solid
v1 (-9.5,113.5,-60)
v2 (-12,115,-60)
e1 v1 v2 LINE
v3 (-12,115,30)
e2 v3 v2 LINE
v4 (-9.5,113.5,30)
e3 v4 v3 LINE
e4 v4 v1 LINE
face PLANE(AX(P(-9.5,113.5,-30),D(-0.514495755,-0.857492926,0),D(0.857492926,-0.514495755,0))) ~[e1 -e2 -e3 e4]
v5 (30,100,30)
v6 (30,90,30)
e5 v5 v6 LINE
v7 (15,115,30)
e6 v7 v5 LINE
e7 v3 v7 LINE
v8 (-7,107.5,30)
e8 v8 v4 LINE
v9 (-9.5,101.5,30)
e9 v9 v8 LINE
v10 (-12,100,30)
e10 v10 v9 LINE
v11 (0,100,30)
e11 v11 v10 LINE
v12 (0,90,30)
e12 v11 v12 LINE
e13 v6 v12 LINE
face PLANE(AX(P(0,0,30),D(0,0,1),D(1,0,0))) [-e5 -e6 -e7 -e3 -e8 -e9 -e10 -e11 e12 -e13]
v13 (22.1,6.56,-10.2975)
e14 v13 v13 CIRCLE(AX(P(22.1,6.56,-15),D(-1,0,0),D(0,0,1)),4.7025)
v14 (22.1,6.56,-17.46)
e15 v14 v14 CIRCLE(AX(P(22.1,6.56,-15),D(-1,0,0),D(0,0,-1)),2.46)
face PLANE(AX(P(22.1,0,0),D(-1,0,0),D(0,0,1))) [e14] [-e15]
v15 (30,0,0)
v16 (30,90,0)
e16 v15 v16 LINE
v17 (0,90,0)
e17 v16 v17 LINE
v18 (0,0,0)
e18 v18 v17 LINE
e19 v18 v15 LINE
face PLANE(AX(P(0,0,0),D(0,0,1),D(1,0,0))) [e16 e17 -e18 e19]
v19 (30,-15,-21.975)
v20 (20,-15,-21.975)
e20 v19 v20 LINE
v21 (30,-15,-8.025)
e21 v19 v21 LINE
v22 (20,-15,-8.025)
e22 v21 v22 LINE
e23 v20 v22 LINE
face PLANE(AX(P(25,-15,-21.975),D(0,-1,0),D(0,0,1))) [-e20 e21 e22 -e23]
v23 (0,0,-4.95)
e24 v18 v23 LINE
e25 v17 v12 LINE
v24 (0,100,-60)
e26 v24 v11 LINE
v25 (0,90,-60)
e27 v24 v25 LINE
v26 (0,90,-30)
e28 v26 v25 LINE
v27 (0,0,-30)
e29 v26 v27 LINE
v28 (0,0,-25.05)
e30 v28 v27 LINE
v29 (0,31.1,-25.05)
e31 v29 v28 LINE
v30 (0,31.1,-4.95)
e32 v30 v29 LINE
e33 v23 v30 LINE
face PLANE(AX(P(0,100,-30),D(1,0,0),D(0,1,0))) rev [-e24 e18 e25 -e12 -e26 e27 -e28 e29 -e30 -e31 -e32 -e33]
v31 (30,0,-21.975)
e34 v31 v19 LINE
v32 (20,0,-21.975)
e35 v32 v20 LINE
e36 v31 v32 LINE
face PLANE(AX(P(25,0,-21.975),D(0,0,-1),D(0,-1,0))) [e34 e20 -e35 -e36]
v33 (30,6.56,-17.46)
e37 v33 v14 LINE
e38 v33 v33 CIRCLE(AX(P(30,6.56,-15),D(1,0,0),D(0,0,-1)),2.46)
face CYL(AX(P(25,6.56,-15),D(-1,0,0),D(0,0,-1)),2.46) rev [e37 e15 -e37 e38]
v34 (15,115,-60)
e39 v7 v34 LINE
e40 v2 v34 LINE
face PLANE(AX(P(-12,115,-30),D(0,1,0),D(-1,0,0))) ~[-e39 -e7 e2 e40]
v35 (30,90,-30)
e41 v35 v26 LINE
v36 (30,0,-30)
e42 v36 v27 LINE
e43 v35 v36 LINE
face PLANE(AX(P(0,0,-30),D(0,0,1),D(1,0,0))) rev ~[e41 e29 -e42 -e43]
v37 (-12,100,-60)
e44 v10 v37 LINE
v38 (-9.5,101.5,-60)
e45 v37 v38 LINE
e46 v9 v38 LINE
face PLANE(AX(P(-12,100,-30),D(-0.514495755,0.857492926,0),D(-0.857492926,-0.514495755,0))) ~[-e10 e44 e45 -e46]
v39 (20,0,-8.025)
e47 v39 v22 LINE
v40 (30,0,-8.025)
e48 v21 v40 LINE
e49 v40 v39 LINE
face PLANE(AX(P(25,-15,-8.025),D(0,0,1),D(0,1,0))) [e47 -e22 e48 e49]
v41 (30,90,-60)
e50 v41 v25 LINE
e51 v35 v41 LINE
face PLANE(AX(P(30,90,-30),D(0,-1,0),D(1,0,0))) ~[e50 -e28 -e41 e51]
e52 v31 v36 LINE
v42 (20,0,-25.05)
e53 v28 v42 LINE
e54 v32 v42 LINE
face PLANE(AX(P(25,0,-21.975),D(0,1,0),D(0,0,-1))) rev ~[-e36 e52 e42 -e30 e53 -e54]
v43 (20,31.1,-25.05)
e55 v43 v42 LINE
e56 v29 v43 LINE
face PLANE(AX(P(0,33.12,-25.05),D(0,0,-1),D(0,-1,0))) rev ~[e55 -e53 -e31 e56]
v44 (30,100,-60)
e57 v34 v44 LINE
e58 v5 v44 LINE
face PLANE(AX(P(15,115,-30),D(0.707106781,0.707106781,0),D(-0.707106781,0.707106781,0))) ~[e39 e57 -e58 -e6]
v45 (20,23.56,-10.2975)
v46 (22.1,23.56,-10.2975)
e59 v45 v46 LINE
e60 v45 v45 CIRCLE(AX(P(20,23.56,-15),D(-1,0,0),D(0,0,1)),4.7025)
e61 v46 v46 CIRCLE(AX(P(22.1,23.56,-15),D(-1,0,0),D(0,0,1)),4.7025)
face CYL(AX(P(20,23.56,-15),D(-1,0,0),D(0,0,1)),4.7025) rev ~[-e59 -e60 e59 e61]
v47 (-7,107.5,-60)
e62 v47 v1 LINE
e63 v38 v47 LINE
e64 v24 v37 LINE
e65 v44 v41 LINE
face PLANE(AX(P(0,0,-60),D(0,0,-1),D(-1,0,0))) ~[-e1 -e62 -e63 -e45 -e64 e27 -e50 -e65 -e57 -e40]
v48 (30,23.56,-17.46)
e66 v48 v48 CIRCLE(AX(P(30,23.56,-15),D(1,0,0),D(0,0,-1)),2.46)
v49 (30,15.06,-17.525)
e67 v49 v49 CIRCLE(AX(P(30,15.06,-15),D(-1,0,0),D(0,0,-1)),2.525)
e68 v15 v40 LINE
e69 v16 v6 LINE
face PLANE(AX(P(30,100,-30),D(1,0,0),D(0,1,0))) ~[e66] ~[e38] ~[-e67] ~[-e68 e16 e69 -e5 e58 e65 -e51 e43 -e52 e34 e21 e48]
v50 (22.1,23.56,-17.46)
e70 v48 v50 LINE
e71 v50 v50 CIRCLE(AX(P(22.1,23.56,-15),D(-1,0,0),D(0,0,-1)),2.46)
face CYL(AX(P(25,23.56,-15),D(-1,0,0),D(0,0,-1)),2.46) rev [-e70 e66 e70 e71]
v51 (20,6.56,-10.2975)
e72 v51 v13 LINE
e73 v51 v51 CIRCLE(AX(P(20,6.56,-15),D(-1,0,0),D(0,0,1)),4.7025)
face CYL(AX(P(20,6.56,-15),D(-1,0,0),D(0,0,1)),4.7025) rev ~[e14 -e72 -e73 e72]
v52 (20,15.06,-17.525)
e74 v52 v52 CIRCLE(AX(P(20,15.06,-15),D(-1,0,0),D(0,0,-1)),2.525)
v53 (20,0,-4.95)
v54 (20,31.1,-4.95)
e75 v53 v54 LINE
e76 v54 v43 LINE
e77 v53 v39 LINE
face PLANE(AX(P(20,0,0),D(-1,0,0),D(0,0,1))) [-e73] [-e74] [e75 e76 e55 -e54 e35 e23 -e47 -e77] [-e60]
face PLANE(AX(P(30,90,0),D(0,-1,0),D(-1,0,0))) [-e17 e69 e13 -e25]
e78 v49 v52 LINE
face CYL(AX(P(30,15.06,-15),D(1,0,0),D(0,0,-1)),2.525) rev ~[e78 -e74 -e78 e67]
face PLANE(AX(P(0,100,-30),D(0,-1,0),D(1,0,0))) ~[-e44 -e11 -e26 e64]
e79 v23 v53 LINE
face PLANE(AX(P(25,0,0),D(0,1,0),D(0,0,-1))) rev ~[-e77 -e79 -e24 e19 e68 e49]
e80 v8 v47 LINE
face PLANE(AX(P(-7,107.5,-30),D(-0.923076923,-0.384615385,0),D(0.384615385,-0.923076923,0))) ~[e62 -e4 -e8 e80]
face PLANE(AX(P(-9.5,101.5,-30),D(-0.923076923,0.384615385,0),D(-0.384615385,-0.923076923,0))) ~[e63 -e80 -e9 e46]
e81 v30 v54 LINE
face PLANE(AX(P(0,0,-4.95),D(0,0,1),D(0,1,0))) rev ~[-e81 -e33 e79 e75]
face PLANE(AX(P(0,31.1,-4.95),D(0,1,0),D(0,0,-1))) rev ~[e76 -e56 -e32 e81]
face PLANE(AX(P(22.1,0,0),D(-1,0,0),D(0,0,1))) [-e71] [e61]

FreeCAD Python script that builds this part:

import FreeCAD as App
import Part
import Sketcher

V = App.Vector
Q = App.Units.Quantity


def add_polygon(sketch, points):
    """Adds a closed chain of lines whose ends are joined by coincident constraints."""
    first, n = sketch.GeometryCount, len(points)
    for a, b in zip(points, points[1:] + points[:1]):
        sketch.addGeometry(Part.LineSegment(App.Vector(*a, 0), App.Vector(*b, 0)), False)
    for i in range(n):
        sketch.addConstraint(Sketcher.Constraint("Coincident", first + i, 2, first + (i + 1) % n, 1))

doc = App.newDocument("Part")
body = doc.addObject("PartDesign::Body", "Body")

sketch1 = body.newObject("Sketcher::SketchObject", "Sketch")
sketch1.AttachmentSupport = (doc.getObject("XY_Plane"), [""])
sketch1.MapMode = "FlatFace"
add_polygon(sketch1, [(0, 40), (0, 0), (25, 0), (25, 40)])
sketch1.addConstraint([
    Sketcher.Constraint("Vertical", 0),
    Sketcher.Constraint("Horizontal", 1),
    Sketcher.Constraint("Vertical", 2),
    Sketcher.Constraint("Horizontal", 3),
    Sketcher.Constraint("Coincident", 0, 2, -1, 1),
    Sketcher.Constraint("DistanceX", 1, 1, 1, 2, Q("25 mm")),
    Sketcher.Constraint("DistanceY", 0, 2, 0, 1, Q("40 mm")),
])
pad1 = body.newObject("PartDesign::Pad", "Pad")
pad1.Profile = sketch1
pad1.Length = 30
pad1.Reversed = True

sketch2 = body.newObject("Sketcher::SketchObject", "Sketch001")
sketch2.AttachmentSupport = (doc.getObject("YZ_Plane"), [""])
sketch2.MapMode = "FlatFace"
sketch2.AttachmentOffset = App.Placement(V(0, 0, 25), App.Rotation())
sketch2.addGeometry(Part.Circle(V(6.6, -15, 0), V(0, 0, 1), 2.5), False)
sketch2.addConstraint([
    Sketcher.Constraint("Diameter", 0, Q("4.92 mm")),
    Sketcher.Constraint("DistanceY", 0, 3, -1, 1, Q("15 mm")),
    Sketcher.Constraint("DistanceX", -1, 1, 0, 3, Q("6.56 mm")),
])
pocket1 = body.newObject("PartDesign::Pocket", "Pocket")
pocket1.Profile = sketch2
pocket1.Length = 30

sketch3 = body.newObject("Sketcher::SketchObject", "Sketch002")
sketch3.AttachmentSupport = (doc.getObject("YZ_Plane"), [""])
sketch3.MapMode = "FlatFace"
add_polygon(sketch3, [(0, -25), (0, -5), (33, -5), (33, -25)])
sketch3.addConstraint([
    Sketcher.Constraint("Vertical", 0),
    Sketcher.Constraint("Horizontal", 1),
    Sketcher.Constraint("Vertical", 2),
    Sketcher.Constraint("Horizontal", 3),
    Sketcher.Constraint("PointOnObject", 0, 2, -2),
    Sketcher.Constraint("DistanceY", 0, 1, 0, 2, Q("20.1 mm")),
    Sketcher.Constraint("DistanceX", 1, 1, 1, 2, Q("33.12 mm")),
    Sketcher.Constraint("DistanceY", 0, 2, -1, 1, Q("4.95 mm")),
])
pocket2 = body.newObject("PartDesign::Pocket", "Pocket001")
pocket2.Profile = sketch3
pocket2.Length = 20
pocket2.Reversed = True

sketch4 = body.newObject("Sketcher::SketchObject", "Sketch003")
sketch4.AttachmentSupport = (doc.getObject("XZ_Plane"), [""])
sketch4.MapMode = "FlatFace"
add_polygon(sketch4, [(25, -8), (20, -8), (20, -22), (25, -22)])
sketch4.addConstraint([
    Sketcher.Constraint("Horizontal", 0),
    Sketcher.Constraint("Vertical", 1),
    Sketcher.Constraint("Horizontal", 2),
    Sketcher.Constraint("Vertical", 3),
    Sketcher.Constraint("DistanceY", 1, 2, 1, 1, Q("13.95 mm")),
    Sketcher.Constraint("DistanceX", 0, 2, 0, 1, Q("5 mm")),
    Sketcher.Constraint("DistanceX", -1, 1, 0, 2, Q("20 mm")),
    Sketcher.Constraint("DistanceY", 0, 2, -1, 1, Q("8.025 mm")),
])
pad2 = body.newObject("PartDesign::Pad", "Pad001")
pad2.Profile = sketch4
pad2.Length = 15

sketch5 = body.newObject("Sketcher::SketchObject", "Sketch004")
sketch5.AttachmentSupport = (doc.getObject("YZ_Plane"), [""])
sketch5.MapMode = "FlatFace"
sketch5.AttachmentOffset = App.Placement(V(0, 0, 20), App.Rotation())
sketch5.addGeometry([
    Part.Circle(V(6.6, -15, 0), V(0, 0, 1), 4.7),
    Part.Circle(V(6.6, -15, 0), V(0, 0, 1), 2.5),
], False)
sketch5.addConstraint([
    Sketcher.Constraint("Coincident", 1, 3, 0, 3),
    Sketcher.Constraint("Diameter", 0, Q("9.405 mm")),
    Sketcher.Constraint("Diameter", 1, Q("4.92 mm")),
    Sketcher.Constraint("DistanceY", 0, 3, -1, 1, Q("15 mm")),
    Sketcher.Constraint("DistanceX", -1, 1, 0, 3, Q("6.56 mm")),
])
pocket3 = body.newObject("PartDesign::Pocket", "Pocket002")
pocket3.Profile = sketch5
pocket3.Length = 2.1
pocket3.Reversed = True

sketch6 = body.newObject("Sketcher::SketchObject", "Sketch005")
sketch6.AttachmentSupport = (doc.getObject("YZ_Plane"), [""])
sketch6.MapMode = "FlatFace"
sketch6.AttachmentOffset = App.Placement(V(0, 0, 25), App.Rotation())
sketch6.addGeometry(Part.Circle(V(23.6, -15, 0), V(0, 0, 1), 2.5), False)
sketch6.addConstraint([
    Sketcher.Constraint("Diameter", 0, Q("4.92 mm")),
    Sketcher.Constraint("DistanceY", 0, 3, -1, 1, Q("15 mm")),
    Sketcher.Constraint("DistanceX", -1, 1, 0, 3, Q("23.56 mm")),
])
pocket4 = body.newObject("PartDesign::Pocket", "Pocket003")
pocket4.Profile = sketch6
pocket4.Length = 10

sketch7 = body.newObject("Sketcher::SketchObject", "Sketch006")
sketch7.AttachmentSupport = (doc.getObject("YZ_Plane"), [""])
sketch7.MapMode = "FlatFace"
sketch7.AttachmentOffset = App.Placement(V(0, 0, 20), App.Rotation())
sketch7.addGeometry([
    Part.Circle(V(23.6, -15, 0), V(0, 0, 1), 4.7),
    Part.Circle(V(23.6, -15, 0), V(0, 0, 1), 2.5),
], False)
sketch7.addConstraint([
    Sketcher.Constraint("Coincident", 1, 3, 0, 3),
    Sketcher.Constraint("Diameter", 0, Q("9.405 mm")),
    Sketcher.Constraint("Diameter", 1, Q("4.92 mm")),
    Sketcher.Constraint("DistanceY", 0, 3, -1, 1, Q("15 mm")),
    Sketcher.Constraint("DistanceX", -1, 1, 0, 3, Q("23.56 mm")),
])
pocket5 = body.newObject("PartDesign::Pocket", "Pocket004")
pocket5.Profile = sketch7
pocket5.Length = 2.1
pocket5.Reversed = True

sketch8 = body.newObject("Sketcher::SketchObject", "Sketch007")
sketch8.AttachmentSupport = (doc.getObject("YZ_Plane"), [""])
sketch8.MapMode = "FlatFace"
sketch8.AttachmentOffset = App.Placement(V(0, 0, 25), App.Rotation())
add_polygon(sketch8, [(0, -30), (40, -30), (40, 0), (0, 0), (0, -8), (-15, -8), (-15, -22), (0, -22)])
sketch8.addGeometry(Part.Circle(V(6.6, -15, 0), V(0, 0, 1), 2.5), False)
sketch8.addGeometry(Part.Circle(V(23.6, -15, 0), V(0, 0, 1), 2.5), False)
sketch8.addConstraint([
    Sketcher.Constraint("Horizontal", 0),
    Sketcher.Constraint("Vertical", 1),
    Sketcher.Constraint("Horizontal", 2),
    Sketcher.Constraint("Vertical", 3),
    Sketcher.Constraint("Horizontal", 4),
    Sketcher.Constraint("Vertical", 5),
    Sketcher.Constraint("Horizontal", 6),
    Sketcher.Constraint("Vertical", 7),
    Sketcher.Constraint("Coincident", 2, 2, -1, 1),
    Sketcher.Constraint("Equal", 8, 9),
    Sketcher.Constraint("PointOnObject", 6, 2, -2),
    Sketcher.Constraint("Horizontal", 8, 3, 9, 3),
    Sketcher.Constraint("Equal", 3, 7),
    Sketcher.Constraint("Diameter", 8, Q("4.92 mm")),
    Sketcher.Constraint("DistanceX", 0, 1, 0, 2, Q("40 mm")),
    Sketcher.Constraint("DistanceX", 4, 2, 4, 1, Q("15 mm")),
    Sketcher.Constraint("DistanceY", 1, 1, 1, 2, Q("30 mm")),
    Sketcher.Constraint("DistanceY", 8, 3, -1, 1, Q("15 mm")),
    Sketcher.Constraint("DistanceX", 8, 3, 9, 3, Q("17 mm")),
    Sketcher.Constraint("DistanceY", 5, 2, 5, 1, Q("13.95 mm")),
    Sketcher.Constraint("DistanceX", -1, 1, 8, 3, Q("6.56 mm")),
])
pad3 = body.newObject("PartDesign::Pad", "Pad002")
pad3.Profile = sketch8
pad3.Length = 5

sketch9 = body.newObject("Sketcher::SketchObject", "Sketch008")
sketch9.AttachmentSupport = (doc.getObject("XZ_Plane"), [""])
sketch9.MapMode = "FlatFace"
sketch9.AttachmentOffset = App.Placement(V(0, 0, -40), App.Rotation())
add_polygon(sketch9, [(30, -30), (0, -30), (0, 0), (30, 0)])
sketch9.addConstraint([
    Sketcher.Constraint("Horizontal", 0),
    Sketcher.Constraint("Vertical", 1),
    Sketcher.Constraint("Horizontal", 2),
    Sketcher.Constraint("Vertical", 3),
    Sketcher.Constraint("Coincident", 1, 2, -1, 1),
    Sketcher.Constraint("Equal", 2, 1),
    Sketcher.Constraint("DistanceX", 0, 2, 0, 1, Q("30 mm")),
])
pad4 = body.newObject("PartDesign::Pad", "Pad003")
pad4.Profile = sketch9
pad4.Length = 30
pad4.Reversed = True

sketch10 = body.newObject("Sketcher::SketchObject", "Sketch009")
sketch10.AttachmentSupport = (doc.getObject("YZ_Plane"), [""])
sketch10.MapMode = "FlatFace"
sketch10.AttachmentOffset = App.Placement(V(0, 0, 30), App.Rotation())
sketch10.addGeometry(Part.Circle(V(15.1, -15, 0), V(0, 0, 1), 2.5), False)
sketch10.addConstraint([
    Sketcher.Constraint("Diameter", 0, Q("5.05 mm")),
    Sketcher.Constraint("DistanceY", 0, 3, -1, 1, Q("15 mm")),
    Sketcher.Constraint("DistanceX", -1, 1, 0, 3, Q("15.06 mm")),
])
pocket6 = body.newObject("PartDesign::Pocket", "Pocket005")
pocket6.Profile = sketch10
pocket6.Length = 30

sketch11 = body.newObject("Sketcher::SketchObject", "Sketch010")
sketch11.AttachmentSupport = (doc.getObject("XY_Plane"), [""])
sketch11.MapMode = "FlatFace"
add_polygon(sketch11, [(0, 70), (30, 70), (30, 100), (15, 115), (-12, 115), (-9.5, 113.5), (-7, 107.5), (-9.5, 101.5), (-12, 100), (0, 100)])
sketch11.addConstraint([
    Sketcher.Constraint("Horizontal", 0),
    Sketcher.Constraint("Vertical", 1),
    Sketcher.Constraint("Horizontal", 3),
    Sketcher.Constraint("Horizontal", 8),
    Sketcher.Constraint("Vertical", 9),
    Sketcher.Constraint("PointOnObject", 8, 2, -2),
    Sketcher.Constraint("Horizontal", 1, 2, 7, 2),
    Sketcher.Constraint("Vertical", 4, 2, 6, 2),
    Sketcher.Constraint("Vertical", 3, 2, 7, 2),
    Sketcher.Constraint("Equal", 0, 1),
    Sketcher.Constraint("Equal", 5, 6),
    Sketcher.Constraint("Equal", 4, 7),
    Sketcher.Constraint("DistanceX", 8, 1, 8, 2, Q("12 mm")),
    Sketcher.Constraint("DistanceX", -1, 1, 2, 2, Q("15 mm")),
    Sketcher.Constraint("DistanceX", 2, 2, 1, 2, Q("15 mm")),
    Sketcher.Constraint("DistanceY", 1, 2, 2, 2, Q("15 mm")),
    Sketcher.Constraint("DistanceY", 6, 2, 4, 2, Q("12 mm")),
    Sketcher.Constraint("DistanceY", -1, 1, 0, 2, Q("70 mm")),
    Sketcher.Constraint("DistanceX", 5, 2, -1, 1, Q("7 mm")),
    Sketcher.Constraint("Distance", 5, Q("6.5 mm")),
])
pad5 = body.newObject("PartDesign::Pad", "Pad004")
pad5.Profile = sketch11
pad5.Length = 30
pad5.Reversed = True

sketch12 = body.newObject("Sketcher::SketchObject", "Sketch011")
sketch12.AttachmentSupport = (doc.getObject("YZ_Plane"), [""])
sketch12.MapMode = "FlatFace"
add_polygon(sketch12, [(33.1, -5), (33.1, -25.1), (31.1, -25.1), (31.1, -5)])
sketch12.addConstraint([
    Sketcher.Constraint("Vertical", 0),
    Sketcher.Constraint("Horizontal", 1),
    Sketcher.Constraint("Vertical", 2),
    Sketcher.Constraint("Horizontal", 3),
    Sketcher.Constraint("DistanceX", 1, 2, 1, 1, Q("2.02 mm")),
    Sketcher.Constraint("DistanceY", 0, 2, 0, 1, Q("20.1 mm")),
    Sketcher.Constraint("DistanceX", -1, 1, 1, 2, Q("31.1 mm")),
    Sketcher.Constraint("DistanceY", 0, 2, -1, 1, Q("25.05 mm")),
])
pad6 = body.newObject("PartDesign::Pad", "Pad005")
pad6.Profile = sketch12
pad6.Length = 20

sketch13 = body.newObject("Sketcher::SketchObject", "Sketch012")
sketch13.AttachmentSupport = (doc.getObject("XY_Plane"), [""])
sketch13.MapMode = "FlatFace"
add_polygon(sketch13, [(-12, 100), (0, 100), (0, 90), (30, 90), (30, 100), (15, 115), (-12, 115), (-9.5, 113.5), (-7, 107.5), (-9.5, 101.5)])
sketch13.addConstraint([
    Sketcher.Constraint("Horizontal", 0),
    Sketcher.Constraint("Vertical", 1),
    Sketcher.Constraint("Horizontal", 2),
    Sketcher.Constraint("Vertical", 3),
    Sketcher.Constraint("Horizontal", 5),
    Sketcher.Constraint("PointOnObject", 0, 2, -2),
    Sketcher.Constraint("Horizontal", 0, 2, 3, 2),
    Sketcher.Constraint("Vertical", 6, 2, 8, 2),
    Sketcher.Constraint("Vertical", 5, 2, 9, 2),
    Sketcher.Constraint("Equal", 7, 8),
    Sketcher.Constraint("Equal", 6, 9),
    Sketcher.Constraint("DistanceX", 2, 1, 2, 2, Q("30 mm")),
    Sketcher.Constraint("DistanceY", 1, 2, 1, 1, Q("10 mm")),
    Sketcher.Constraint("DistanceX", 0, 1, 0, 2, Q("12 mm")),
    Sketcher.Constraint("DistanceX", 5, 2, 5, 1, Q("27 mm")),
    Sketcher.Constraint("Angle", 4, Q("135 deg")),
    Sketcher.Constraint("DistanceY", -1, 1, 0, 2, Q("100 mm")),
    Sketcher.Constraint("DistanceX", 7, 2, -1, 1, Q("7 mm")),
    Sketcher.Constraint("DistanceY", 7, 2, 6, 2, Q("6 mm")),
    Sketcher.Constraint("Distance", 7, Q("6.5 mm")),
])
pad7 = body.newObject("PartDesign::Pad", "Pad006")
pad7.Profile = sketch13
pad7.Length = 30
doc.recompute()

datumplane = body.newObject("PartDesign::Plane", "DatumPlane")
datumplane.AttachmentSupport = (doc.getObject("XY_Plane"), [""])
datumplane.MapMode = "FlatFace"
datumplane.AttachmentOffset = App.Placement(V(0, 0, -15), App.Rotation())
mirrored = body.newObject("PartDesign::Mirrored", "Mirrored")
mirrored.Originals = [pad7]
mirrored.MirrorPlane = (datumplane, [""])
body.Tip = mirrored

doc.recompute()
